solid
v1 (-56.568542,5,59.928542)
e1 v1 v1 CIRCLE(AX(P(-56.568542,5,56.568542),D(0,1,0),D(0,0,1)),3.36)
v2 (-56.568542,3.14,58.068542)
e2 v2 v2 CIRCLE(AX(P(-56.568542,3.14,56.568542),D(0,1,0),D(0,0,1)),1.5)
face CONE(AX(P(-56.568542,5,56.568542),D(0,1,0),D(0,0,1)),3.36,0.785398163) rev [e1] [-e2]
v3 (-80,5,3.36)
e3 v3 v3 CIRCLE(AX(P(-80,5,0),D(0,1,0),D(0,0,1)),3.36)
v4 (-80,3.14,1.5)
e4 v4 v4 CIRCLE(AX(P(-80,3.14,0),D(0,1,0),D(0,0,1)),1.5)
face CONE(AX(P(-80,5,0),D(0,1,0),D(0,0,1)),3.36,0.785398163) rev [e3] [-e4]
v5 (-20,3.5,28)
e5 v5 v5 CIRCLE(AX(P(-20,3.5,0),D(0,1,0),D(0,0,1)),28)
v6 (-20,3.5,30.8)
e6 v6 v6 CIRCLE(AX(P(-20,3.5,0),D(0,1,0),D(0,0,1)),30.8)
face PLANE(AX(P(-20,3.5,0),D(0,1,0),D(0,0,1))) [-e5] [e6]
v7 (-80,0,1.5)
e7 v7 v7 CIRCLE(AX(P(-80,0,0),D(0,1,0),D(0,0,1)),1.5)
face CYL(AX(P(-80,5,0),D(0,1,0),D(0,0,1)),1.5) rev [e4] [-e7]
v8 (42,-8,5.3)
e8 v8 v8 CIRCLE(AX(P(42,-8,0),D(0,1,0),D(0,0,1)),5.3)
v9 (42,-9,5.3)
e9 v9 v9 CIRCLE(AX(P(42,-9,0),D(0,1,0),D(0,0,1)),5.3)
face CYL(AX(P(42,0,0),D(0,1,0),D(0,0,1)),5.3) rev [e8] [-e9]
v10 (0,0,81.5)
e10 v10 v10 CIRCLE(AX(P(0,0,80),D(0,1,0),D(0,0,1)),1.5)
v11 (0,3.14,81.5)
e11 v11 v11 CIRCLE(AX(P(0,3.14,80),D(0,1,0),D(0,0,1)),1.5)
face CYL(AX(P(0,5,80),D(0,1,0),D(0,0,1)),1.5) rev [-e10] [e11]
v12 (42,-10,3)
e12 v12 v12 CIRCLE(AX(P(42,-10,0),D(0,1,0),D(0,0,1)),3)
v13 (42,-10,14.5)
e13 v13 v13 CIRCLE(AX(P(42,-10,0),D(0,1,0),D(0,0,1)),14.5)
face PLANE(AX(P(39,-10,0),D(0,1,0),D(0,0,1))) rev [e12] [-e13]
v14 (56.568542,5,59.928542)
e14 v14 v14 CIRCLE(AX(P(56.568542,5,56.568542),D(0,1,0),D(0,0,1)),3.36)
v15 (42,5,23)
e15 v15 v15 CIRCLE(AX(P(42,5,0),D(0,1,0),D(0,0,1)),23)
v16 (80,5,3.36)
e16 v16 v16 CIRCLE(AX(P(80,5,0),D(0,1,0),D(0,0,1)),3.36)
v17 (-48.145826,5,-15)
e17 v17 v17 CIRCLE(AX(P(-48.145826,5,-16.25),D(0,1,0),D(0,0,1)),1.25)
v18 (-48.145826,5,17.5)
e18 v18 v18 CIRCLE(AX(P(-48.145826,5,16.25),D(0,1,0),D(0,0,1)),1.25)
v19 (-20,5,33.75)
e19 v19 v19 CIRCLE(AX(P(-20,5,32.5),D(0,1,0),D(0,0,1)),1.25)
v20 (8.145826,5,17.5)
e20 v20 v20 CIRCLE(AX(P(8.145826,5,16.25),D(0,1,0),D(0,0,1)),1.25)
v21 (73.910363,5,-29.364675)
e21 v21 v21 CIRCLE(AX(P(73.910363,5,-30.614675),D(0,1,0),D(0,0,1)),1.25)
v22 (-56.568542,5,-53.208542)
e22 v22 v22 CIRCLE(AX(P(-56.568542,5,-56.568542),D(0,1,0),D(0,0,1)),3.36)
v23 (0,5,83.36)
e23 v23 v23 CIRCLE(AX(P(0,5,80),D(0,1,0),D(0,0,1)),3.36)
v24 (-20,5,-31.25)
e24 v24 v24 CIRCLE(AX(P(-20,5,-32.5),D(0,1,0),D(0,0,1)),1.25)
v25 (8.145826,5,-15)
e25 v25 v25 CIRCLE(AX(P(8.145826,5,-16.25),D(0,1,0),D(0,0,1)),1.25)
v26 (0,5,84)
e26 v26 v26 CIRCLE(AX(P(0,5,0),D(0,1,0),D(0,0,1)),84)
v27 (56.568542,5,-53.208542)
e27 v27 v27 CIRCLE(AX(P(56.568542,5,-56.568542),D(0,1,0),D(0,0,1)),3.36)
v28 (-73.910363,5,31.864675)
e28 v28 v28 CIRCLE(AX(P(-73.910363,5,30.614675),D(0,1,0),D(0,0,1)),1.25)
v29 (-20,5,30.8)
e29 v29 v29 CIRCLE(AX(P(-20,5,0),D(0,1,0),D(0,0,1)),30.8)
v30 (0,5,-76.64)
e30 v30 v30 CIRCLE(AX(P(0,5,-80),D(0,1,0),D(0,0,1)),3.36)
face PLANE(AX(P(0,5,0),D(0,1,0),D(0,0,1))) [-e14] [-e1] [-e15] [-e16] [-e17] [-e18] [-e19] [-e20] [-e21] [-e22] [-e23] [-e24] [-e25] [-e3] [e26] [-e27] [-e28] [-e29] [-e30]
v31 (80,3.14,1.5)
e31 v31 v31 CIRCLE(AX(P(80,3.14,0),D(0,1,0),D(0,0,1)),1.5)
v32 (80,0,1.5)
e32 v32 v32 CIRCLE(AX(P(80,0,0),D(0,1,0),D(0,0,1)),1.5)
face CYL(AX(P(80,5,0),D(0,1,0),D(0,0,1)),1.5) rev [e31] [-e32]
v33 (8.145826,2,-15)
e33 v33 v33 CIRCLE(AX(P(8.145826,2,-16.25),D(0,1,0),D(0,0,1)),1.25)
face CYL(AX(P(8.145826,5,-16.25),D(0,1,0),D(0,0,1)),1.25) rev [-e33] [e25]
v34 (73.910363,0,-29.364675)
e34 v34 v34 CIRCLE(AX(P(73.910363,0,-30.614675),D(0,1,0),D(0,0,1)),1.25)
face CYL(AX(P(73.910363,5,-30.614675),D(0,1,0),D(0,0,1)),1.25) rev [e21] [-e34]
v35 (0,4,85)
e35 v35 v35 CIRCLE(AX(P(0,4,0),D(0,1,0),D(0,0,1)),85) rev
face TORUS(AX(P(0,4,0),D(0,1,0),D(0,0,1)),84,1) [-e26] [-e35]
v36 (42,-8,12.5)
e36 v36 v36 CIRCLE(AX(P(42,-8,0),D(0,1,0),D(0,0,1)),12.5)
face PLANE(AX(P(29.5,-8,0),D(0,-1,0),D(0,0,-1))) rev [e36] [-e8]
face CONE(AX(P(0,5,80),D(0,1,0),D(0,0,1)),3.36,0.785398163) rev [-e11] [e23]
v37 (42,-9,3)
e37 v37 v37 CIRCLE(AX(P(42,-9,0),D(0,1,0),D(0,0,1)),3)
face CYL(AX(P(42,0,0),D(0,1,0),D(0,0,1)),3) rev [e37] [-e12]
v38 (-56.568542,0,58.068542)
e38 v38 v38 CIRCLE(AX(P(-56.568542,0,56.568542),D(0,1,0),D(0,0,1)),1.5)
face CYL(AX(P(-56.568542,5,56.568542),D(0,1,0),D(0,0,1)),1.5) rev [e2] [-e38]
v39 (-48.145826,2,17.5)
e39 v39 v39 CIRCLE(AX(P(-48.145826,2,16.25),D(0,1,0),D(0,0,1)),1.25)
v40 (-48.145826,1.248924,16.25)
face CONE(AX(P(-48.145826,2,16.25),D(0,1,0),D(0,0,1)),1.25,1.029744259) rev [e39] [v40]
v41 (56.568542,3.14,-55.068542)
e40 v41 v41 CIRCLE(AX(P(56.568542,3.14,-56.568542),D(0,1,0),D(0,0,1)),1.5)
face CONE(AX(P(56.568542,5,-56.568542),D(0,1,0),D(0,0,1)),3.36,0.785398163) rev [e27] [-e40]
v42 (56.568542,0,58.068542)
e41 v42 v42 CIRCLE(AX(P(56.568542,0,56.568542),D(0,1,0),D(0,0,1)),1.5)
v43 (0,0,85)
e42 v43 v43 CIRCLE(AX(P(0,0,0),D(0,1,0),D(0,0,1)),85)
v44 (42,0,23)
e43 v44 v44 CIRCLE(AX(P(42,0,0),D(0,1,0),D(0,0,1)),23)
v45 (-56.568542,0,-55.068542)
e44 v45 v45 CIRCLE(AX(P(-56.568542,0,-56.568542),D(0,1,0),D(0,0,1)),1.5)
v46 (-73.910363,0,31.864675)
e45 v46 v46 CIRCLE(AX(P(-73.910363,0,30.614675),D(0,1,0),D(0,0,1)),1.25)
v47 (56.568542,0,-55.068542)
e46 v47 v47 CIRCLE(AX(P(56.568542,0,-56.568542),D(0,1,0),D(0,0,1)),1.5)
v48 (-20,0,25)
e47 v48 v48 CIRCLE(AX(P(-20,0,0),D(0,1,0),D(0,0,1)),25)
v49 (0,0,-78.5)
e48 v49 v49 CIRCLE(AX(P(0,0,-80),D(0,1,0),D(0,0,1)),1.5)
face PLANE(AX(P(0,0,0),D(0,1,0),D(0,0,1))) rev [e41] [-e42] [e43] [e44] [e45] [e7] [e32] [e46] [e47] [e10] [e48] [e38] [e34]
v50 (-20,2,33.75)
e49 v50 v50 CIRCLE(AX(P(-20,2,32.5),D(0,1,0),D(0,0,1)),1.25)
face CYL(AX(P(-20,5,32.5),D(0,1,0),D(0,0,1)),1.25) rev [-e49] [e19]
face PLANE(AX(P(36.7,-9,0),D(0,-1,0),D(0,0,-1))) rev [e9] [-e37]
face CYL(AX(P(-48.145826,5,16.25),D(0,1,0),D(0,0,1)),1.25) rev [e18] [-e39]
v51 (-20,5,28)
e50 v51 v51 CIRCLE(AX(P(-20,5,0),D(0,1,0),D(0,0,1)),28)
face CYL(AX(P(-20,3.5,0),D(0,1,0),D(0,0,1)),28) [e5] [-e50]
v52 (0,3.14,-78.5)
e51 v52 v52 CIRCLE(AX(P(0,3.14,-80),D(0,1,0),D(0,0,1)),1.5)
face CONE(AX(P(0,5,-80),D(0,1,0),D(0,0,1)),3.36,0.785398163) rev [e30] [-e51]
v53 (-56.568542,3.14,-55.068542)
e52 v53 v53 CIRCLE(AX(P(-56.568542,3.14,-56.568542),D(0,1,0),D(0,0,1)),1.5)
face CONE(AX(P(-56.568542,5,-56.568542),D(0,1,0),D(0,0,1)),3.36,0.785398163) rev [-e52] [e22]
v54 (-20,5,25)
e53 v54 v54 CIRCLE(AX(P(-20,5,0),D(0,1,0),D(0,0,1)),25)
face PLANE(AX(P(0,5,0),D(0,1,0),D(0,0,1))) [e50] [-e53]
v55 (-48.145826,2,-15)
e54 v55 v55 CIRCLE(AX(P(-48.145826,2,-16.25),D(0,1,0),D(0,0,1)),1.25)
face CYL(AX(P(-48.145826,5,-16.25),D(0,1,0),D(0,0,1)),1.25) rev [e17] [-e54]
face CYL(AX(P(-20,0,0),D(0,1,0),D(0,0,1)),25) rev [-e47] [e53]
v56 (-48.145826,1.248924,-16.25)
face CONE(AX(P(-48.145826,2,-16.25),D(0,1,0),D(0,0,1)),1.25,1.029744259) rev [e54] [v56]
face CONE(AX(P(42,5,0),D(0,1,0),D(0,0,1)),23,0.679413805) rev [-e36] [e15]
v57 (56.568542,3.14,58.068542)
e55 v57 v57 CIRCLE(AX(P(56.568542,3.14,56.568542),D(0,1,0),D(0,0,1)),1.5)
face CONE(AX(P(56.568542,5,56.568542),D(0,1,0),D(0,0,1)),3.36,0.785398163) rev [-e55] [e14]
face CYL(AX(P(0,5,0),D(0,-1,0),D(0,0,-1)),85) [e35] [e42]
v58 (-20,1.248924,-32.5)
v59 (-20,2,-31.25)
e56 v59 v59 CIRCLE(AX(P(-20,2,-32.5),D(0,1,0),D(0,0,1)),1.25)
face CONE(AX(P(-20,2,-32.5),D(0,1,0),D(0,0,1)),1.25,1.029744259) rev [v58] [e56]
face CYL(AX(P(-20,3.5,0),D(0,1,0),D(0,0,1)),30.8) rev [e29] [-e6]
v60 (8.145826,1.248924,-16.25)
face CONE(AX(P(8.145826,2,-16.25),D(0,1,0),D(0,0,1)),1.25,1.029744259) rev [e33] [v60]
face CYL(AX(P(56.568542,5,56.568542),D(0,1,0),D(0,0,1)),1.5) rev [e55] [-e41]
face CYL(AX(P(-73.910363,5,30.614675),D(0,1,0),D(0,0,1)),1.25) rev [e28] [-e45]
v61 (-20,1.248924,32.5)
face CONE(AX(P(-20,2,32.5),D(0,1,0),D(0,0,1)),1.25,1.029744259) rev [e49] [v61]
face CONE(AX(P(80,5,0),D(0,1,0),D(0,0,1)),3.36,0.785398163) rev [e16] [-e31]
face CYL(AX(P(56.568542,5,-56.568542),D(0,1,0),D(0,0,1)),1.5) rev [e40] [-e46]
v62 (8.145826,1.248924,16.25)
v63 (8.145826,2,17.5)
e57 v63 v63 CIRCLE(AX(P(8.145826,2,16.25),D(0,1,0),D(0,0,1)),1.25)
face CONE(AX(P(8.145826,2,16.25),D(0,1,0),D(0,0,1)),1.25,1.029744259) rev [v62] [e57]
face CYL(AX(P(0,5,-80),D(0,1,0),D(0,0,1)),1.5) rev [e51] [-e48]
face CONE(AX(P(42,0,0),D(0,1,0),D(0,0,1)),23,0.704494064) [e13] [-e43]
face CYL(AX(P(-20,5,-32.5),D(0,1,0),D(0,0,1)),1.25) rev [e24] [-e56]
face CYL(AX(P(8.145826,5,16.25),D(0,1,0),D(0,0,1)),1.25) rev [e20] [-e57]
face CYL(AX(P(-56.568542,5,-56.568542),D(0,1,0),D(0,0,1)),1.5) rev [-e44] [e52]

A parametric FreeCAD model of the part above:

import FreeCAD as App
import Part
import Sketcher

V = App.Vector


def edges_at(feature, points):
    """Names of the edges that pass closest to the given points."""
    edges = feature.Shape.Edges
    near = lambda p: min(range(len(edges)), key=lambda i: edges[i].distToShape(Part.Vertex(*p))[0])
    return sorted({f"Edge{near(p) + 1}" for p in points})

doc = App.newDocument("Part")
body = doc.addObject("PartDesign::Body", "Body")

sketch1 = doc.addObject("Sketcher::SketchObject", "Sketch")
body.addObject(sketch1)
sketch1.AttachmentSupport = (doc.XZ_Plane, [""])
sketch1.MapMode = "FlatFace"
sketch1.addGeometry(Part.Circle(V(0, 0, 0), V(0, 0, 1), 85), False)
sketch1.addConstraint([
    Sketcher.Constraint("Coincident", 0, 3, -1, 1),
    Sketcher.Constraint("Diameter", 0, 170.0),
])
pad1 = doc.addObject("PartDesign::Pad", "Pad")
body.addObject(pad1)
pad1.Profile = sketch1
pad1.Length = 5
pad1.Reversed = True

sketch2 = doc.addObject("Sketcher::SketchObject", "Sketch001")
body.addObject(sketch2)
sketch2.AttachmentSupport = (doc.XZ_Plane, [""])
sketch2.MapMode = "FlatFace"
sketch2.AttachmentOffset = App.Placement(V(0, 0, -5), App.Rotation())
sketch2.addGeometry([
    Part.Circle(V(0, -80, 0), V(0, 0, 1), 1.5),
    Part.Circle(V(56.568542, -56.568542, 0), V(0, 0, 1), 1.5),
    Part.Circle(V(80, 0, 0), V(0, 0, 1), 1.5),
    Part.Circle(V(56.568542, 56.568542, 0), V(0, 0, 1), 1.5),
    Part.Circle(V(0, 80, 0), V(0, 0, 1), 1.5),
    Part.Circle(V(-56.568542, 56.568542, 0), V(0, 0, 1), 1.5),
    Part.Circle(V(-56.568542, -56.568542, 0), V(0, 0, 1), 1.5),
    Part.Circle(V(-80, 0, 0), V(0, 0, 1), 1.5),
], False)
sketch2.addConstraint([
    Sketcher.Constraint("Equal", 0, 1),
    Sketcher.Constraint("Equal", 1, 2),
    Sketcher.Constraint("Equal", 2, 3),
    Sketcher.Constraint("Equal", 3, 4),
    Sketcher.Constraint("Equal", 4, 5),
    Sketcher.Constraint("Equal", 5, 6),
    Sketcher.Constraint("Equal", 6, 7),
    Sketcher.Constraint("Symmetric", 0, 3, 4, 3, -1, 1),
    Sketcher.Constraint("Symmetric", 1, 3, 5, 3, -1, 1),
    Sketcher.Constraint("Symmetric", 3, 3, 6, 3, -1, 1),
    Sketcher.Constraint("Symmetric", 2, 3, 7, 3, -1, 1),
    Sketcher.Constraint("Symmetric", 3, 3, 5, 3, -2),
    Sketcher.Constraint("PointOnObject", 0, 3, -2),
    Sketcher.Constraint("PointOnObject", 2, 3, -1),
    Sketcher.Constraint("Diameter", 0, 3.0),
    Sketcher.Constraint("DistanceY", 0, 3, -1, 1, 80.0),
    Sketcher.Constraint("DistanceX", -1, 1, 2, 3, 80.0),
    Sketcher.Constraint("DistanceX", -1, 1, 1, 3, 56.568542),
    Sketcher.Constraint("DistanceY", 1, 3, -1, 1, 56.568542),
])
doc.recompute()
hole = doc.addObject("PartDesign::Hole", "Hole")
body.addObject(hole)
hole.Profile = sketch2
hole.ThreadType = "None"
hole.Diameter = 3
hole.DepthType = "ThroughAll"
hole.HoleCutType = "Countersink"
hole.HoleCutDiameter = 6.72
hole.HoleCutCountersinkAngle = 90
hole.Reversed = True

sketch3 = doc.addObject("Sketcher::SketchObject", "Sketch002")
body.addObject(sketch3)
sketch3.AttachmentSupport = (doc.XZ_Plane, [""])
sketch3.MapMode = "FlatFace"
sketch3.AttachmentOffset = App.Placement(V(0, 0, -5), App.Rotation())
sketch3.addGeometry([
    Part.Circle(V(-20, 0, 0), V(0, 0, 1), 25),
    Part.Circle(V(42, 0, 0), V(0, 0, 1), 23),
], False)
sketch3.addConstraint([
    Sketcher.Constraint("PointOnObject", 0, 3, -1),
    Sketcher.Constraint("PointOnObject", 1, 3, -1),
    Sketcher.Constraint("Diameter", 0, 50.0),
    Sketcher.Constraint("Diameter", 1, 46.0),
    Sketcher.Constraint("DistanceX", 0, 3, -1, 1, 20.0),
    Sketcher.Constraint("DistanceX", -1, 1, 1, 3, 42.0),
])
pocket1 = doc.addObject("PartDesign::Pocket", "Pocket")
body.addObject(pocket1)
pocket1.Profile = sketch3
pocket1.Length = 5
pocket1.Reversed = True

sketch4 = doc.addObject("Sketcher::SketchObject", "Sketch003")
body.addObject(sketch4)
sketch4.AttachmentSupport = (doc.XY_Plane, [""])
sketch4.MapMode = "FlatFace"
sketch4.addGeometry([
    Part.LineSegment(V(29.5, -8, 0), V(19, 5, 0)),
    Part.LineSegment(V(19, 5, 0), V(19, 0, 0)),
    Part.LineSegment(V(19, 0, 0), V(27.5, -10, 0)),
    Part.LineSegment(V(27.5, -10, 0), V(39, -10, 0)),
    Part.LineSegment(V(39, -10, 0), V(39, -9, 0)),
    Part.LineSegment(V(39, -9, 0), V(36.7, -9, 0)),
    Part.LineSegment(V(36.7, -9, 0), V(36.7, -8, 0)),
    Part.LineSegment(V(36.7, -8, 0), V(29.5, -8, 0)),
], False)
sketch4.addGeometry(Part.LineSegment(V(42, 5, 0), V(42, -10, 0)), True)
sketch4.addConstraint([
    Sketcher.Constraint("Coincident", 0, 2, 1, 1),
    Sketcher.Constraint("Coincident", 1, 2, 2, 1),
    Sketcher.Constraint("Coincident", 2, 2, 3, 1),
    Sketcher.Constraint("Coincident", 3, 2, 4, 1),
    Sketcher.Constraint("Coincident", 4, 2, 5, 1),
    Sketcher.Constraint("Coincident", 5, 2, 6, 1),
    Sketcher.Constraint("Coincident", 6, 2, 7, 1),
    Sketcher.Constraint("Coincident", 7, 2, 0, 1),
    Sketcher.Constraint("Vertical", 1),
    Sketcher.Constraint("Horizontal", 3),
    Sketcher.Constraint("Vertical", 4),
    Sketcher.Constraint("Horizontal", 5),
    Sketcher.Constraint("Vertical", 6),
    Sketcher.Constraint("Horizontal", 7),
    Sketcher.Constraint("Vertical", 8),
    Sketcher.Constraint("PointOnObject", 1, 2, -1),
    Sketcher.Constraint("Horizontal", 0, 2, 8, 1),
    Sketcher.Constraint("Horizontal", 3, 2, 8, 2),
    Sketcher.Constraint("Equal", 4, 6),
    Sketcher.Constraint("DistanceY", 1, 2, 1, 1, 5.0),
    Sketcher.Constraint("DistanceY", 4, 1, 4, 2, 1.0),
    Sketcher.Constraint("DistanceY", 8, 2, 8, 1, 15.0),
    Sketcher.Constraint("DistanceX", 3, 1, 3, 2, 11.5),
    Sketcher.Constraint("DistanceX", 5, 2, 5, 1, 2.3),
    Sketcher.Constraint("DistanceX", 7, 2, 7, 1, 7.2),
    Sketcher.Constraint("DistanceX", -1, 1, 0, 2, 19.0),
    Sketcher.Constraint("DistanceX", -1, 1, 3, 2, 39.0),
    Sketcher.Constraint("DistanceX", -1, 1, 8, 1, 42.0),
])
revolution = doc.addObject("PartDesign::Revolution", "Revolution")
body.addObject(revolution)
revolution.Profile = sketch4
revolution.ReferenceAxis = (sketch4, ["Axis0"])
revolution.Angle = 360

sketch5 = doc.addObject("Sketcher::SketchObject", "Sketch004")
body.addObject(sketch5)
sketch5.AttachmentSupport = (doc.XZ_Plane, [""])
sketch5.MapMode = "FlatFace"
sketch5.AttachmentOffset = App.Placement(V(0, 0, -5), App.Rotation())
sketch5.addGeometry([
    Part.Circle(V(-20, 0, 0), V(0, 0, 1), 30.8),
    Part.Circle(V(-20, 0, 0), V(0, 0, 1), 28),
], False)
sketch5.addConstraint([
    Sketcher.Constraint("Coincident", 1, 3, 0, 3),
    Sketcher.Constraint("PointOnObject", 0, 3, -1),
    Sketcher.Constraint("Diameter", 1, 56.0),
    Sketcher.Constraint("Diameter", 0, 61.6),
    Sketcher.Constraint("DistanceX", 0, 3, -1, 1, 20.0),
])
pocket2 = doc.addObject("PartDesign::Pocket", "Pocket001")
body.addObject(pocket2)
pocket2.Profile = sketch5
pocket2.Length = 1.5
pocket2.Reversed = True
doc.recompute()

fillet = doc.addObject("PartDesign::Fillet", "Fillet")
body.addObject(fillet)
fillet.Base = (pocket2, edges_at(pocket2, [(0, 5, -85)]))
fillet.Radius = 1

sketch6 = doc.addObject("Sketcher::SketchObject", "Sketch005")
body.addObject(sketch6)
sketch6.AttachmentSupport = (doc.XZ_Plane, [""])
sketch6.MapMode = "FlatFace"
sketch6.AttachmentOffset = App.Placement(V(0, 0, -5), App.Rotation())
sketch6.addGeometry([
    Part.Circle(V(-20, -32.5, 0), V(0, 0, 1), 1.25),
    Part.Circle(V(8.145826, -16.25, 0), V(0, 0, 1), 1.25),
    Part.Circle(V(8.145826, 16.25, 0), V(0, 0, 1), 1.25),
    Part.Circle(V(-20, 32.5, 0), V(0, 0, 1), 1.25),
    Part.Circle(V(-48.145826, -16.25, 0), V(0, 0, 1), 1.25),
    Part.Circle(V(-48.145826, 16.25, 0), V(0, 0, 1), 1.25),
], False)
sketch6.addConstraint([
    Sketcher.Constraint("Equal", 0, 1),
    Sketcher.Constraint("Equal", 1, 2),
    Sketcher.Constraint("Equal", 2, 3),
    Sketcher.Constraint("Equal", 3, 4),
    Sketcher.Constraint("Equal", 4, 5),
    Sketcher.Constraint("Symmetric", 1, 3, 2, 3, -1),
    Sketcher.Constraint("Symmetric", 0, 3, 3, 3, -1),
    Sketcher.Constraint("Symmetric", 4, 3, 5, 3, -1),
    Sketcher.Constraint("Horizontal", 1, 3, 4, 3),
    Sketcher.Constraint("Diameter", 0, 2.5),
    Sketcher.Constraint("DistanceX", 0, 3, -1, 1, 20.0),
    Sketcher.Constraint("DistanceY", 0, 3, 3, 3, 65.0),
    Sketcher.Constraint("DistanceY", 1, 3, 2, 3, 32.5),
    Sketcher.Constraint("DistanceX", 4, 3, 1, 3, 56.291651),
    Sketcher.Constraint("DistanceX", -1, 1, 1, 3, 8.145826),
])
doc.recompute()
hole2 = doc.addObject("PartDesign::Hole", "Hole001")
body.addObject(hole2)
hole2.Profile = sketch6
hole2.ThreadType = "None"
hole2.Diameter = 2.5
hole2.DepthType = "Dimension"
hole2.Depth = 3
hole2.DrillPoint = "Angled"
hole2.DrillPointAngle = 118
hole2.Reversed = True

sketch7 = doc.addObject("Sketcher::SketchObject", "Sketch006")
body.addObject(sketch7)
sketch7.AttachmentSupport = (doc.XZ_Plane, [""])
sketch7.MapMode = "FlatFace"
sketch7.AttachmentOffset = App.Placement(V(0, 0, -5), App.Rotation())
sketch7.addGeometry([
    Part.Circle(V(-73.910363, 30.614675, 0), V(0, 0, 1), 1.25),
    Part.Circle(V(73.910363, -30.614675, 0), V(0, 0, 1), 1.25),
], False)
sketch7.addConstraint([
    Sketcher.Constraint("Equal", 0, 1),
    Sketcher.Constraint("Symmetric", 0, 3, 1, 3, -1, 1),
    Sketcher.Constraint("Diameter", 0, 2.5),
    Sketcher.Constraint("DistanceY", 1, 3, 0, 3, 61.229349),
    Sketcher.Constraint("DistanceX", 0, 3, -1, 1, 73.910363),
])
doc.recompute()
hole3 = doc.addObject("PartDesign::Hole", "Hole002")
body.addObject(hole3)
hole3.Profile = sketch7
hole3.ThreadType = "None"
hole3.Diameter = 2.5
hole3.DepthType = "ThroughAll"
hole3.Reversed = True

doc.recompute()
